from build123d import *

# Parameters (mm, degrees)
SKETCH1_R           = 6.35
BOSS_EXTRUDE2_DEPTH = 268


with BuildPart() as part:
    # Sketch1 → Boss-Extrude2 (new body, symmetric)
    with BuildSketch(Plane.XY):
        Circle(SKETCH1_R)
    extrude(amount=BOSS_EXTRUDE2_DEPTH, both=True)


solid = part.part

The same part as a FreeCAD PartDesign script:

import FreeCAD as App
import Part
import Sketcher

doc = App.newDocument("Part")
params = doc.addObject("Spreadsheet::Sheet", "Params")
for row, (alias, value) in enumerate([
    ("sketch1_diameter", "12.7 mm"),
    ("pad1_length", "536 mm"),
], start=1):
    params.set(f"A{row}", alias)
    params.set(f"B{row}", "=" + value)
    params.setAlias(f"B{row}", alias)

body = doc.addObject("PartDesign::Body", "Body")

# Sketch on XY plane
sketch1 = doc.addObject("Sketcher::SketchObject", "Sketch")
body.addObject(sketch1)
sketch1.AttachmentSupport = (doc.XY_Plane, [""])
sketch1.MapMode = "FlatFace"
sketch1.addGeometry(Part.Circle(App.Vector(0, 0, 0), App.Vector(0, 0, 1), 6), False)
sketch1.addConstraint(Sketcher.Constraint("Coincident", 0, 3, -1, 1))
sketch1.addConstraint(Sketcher.Constraint("Diameter", 0, 12.7))
sketch1.setExpression("Constraints[1]", "Params.sketch1_diameter")
pad1 = doc.addObject("PartDesign::Pad", "Pad")
body.addObject(pad1)
pad1.Profile = sketch1
pad1.setExpression("Length", "Params.pad1_length")
pad1.Midplane = True

doc.recompute()
